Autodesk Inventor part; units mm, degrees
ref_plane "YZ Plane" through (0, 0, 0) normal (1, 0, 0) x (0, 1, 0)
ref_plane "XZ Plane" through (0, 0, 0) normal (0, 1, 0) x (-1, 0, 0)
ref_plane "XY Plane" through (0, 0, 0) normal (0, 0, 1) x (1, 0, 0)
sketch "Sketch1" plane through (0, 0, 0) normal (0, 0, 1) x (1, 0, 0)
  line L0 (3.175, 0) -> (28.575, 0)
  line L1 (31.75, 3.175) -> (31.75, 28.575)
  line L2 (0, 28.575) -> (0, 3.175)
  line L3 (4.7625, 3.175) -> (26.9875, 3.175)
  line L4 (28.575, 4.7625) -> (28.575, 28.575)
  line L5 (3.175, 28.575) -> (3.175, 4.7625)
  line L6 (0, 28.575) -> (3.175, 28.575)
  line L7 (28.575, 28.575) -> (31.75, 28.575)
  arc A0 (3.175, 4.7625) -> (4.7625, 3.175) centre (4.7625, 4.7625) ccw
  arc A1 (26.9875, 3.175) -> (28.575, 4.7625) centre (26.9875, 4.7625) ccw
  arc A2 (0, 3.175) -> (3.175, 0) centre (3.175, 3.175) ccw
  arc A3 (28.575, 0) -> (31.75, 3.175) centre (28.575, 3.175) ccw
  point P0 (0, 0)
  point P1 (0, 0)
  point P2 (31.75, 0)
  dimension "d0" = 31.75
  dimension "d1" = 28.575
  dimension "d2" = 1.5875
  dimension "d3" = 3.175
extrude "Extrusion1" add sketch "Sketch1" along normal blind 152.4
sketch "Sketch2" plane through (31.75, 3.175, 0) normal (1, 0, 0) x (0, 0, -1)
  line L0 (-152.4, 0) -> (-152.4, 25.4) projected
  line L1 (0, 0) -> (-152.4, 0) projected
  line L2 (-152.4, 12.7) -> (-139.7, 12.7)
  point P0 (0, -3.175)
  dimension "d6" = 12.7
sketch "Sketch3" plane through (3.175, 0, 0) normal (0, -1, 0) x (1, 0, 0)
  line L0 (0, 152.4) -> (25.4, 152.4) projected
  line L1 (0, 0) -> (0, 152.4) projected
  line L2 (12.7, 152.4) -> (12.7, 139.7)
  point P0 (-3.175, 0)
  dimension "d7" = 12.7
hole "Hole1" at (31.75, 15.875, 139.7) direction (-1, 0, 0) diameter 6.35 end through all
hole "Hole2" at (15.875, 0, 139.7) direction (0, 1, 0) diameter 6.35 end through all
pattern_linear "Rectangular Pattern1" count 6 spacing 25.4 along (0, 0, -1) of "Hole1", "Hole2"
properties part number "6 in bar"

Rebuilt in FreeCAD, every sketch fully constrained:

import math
import FreeCAD as App
import Part
import Sketcher
Q = App.Units.Quantity

doc = App.newDocument("Part")
params = doc.addObject("Spreadsheet::Sheet", "Params")
for row, (alias, value) in enumerate([
    ("sketch1_radius", "0.125 in"),
    ("sketch1_radius2", "0.0625 in"),
    ("sketch1_width", "1 in"),
    ("pad1_length", "6 in"),
    ("sketch2_diameter", "0.25 in"),
    ("hole_diameter", "0.25 in"),
    ("sketch3_diameter", "0.25 in"),
    ("hole2_diameter", "0.25 in"),
    ("linearpattern_pitch", "1 in"),
], start=1):
    params.set(f"A{row}", alias)
    params.set(f"B{row}", "=" + value)
    params.setAlias(f"B{row}", alias)

body = doc.addObject("PartDesign::Body", "Body")

sketch1 = body.newObject("Sketcher::SketchObject", "Sketch")
sketch1.AttachmentSupport = (doc.getObject("XY_Plane"), [""])
sketch1.MapMode = "FlatFace"
sketch1.addGeometry(Part.ArcOfCircle(Part.Circle(App.Vector(3.175, 3.175, 0), App.Vector(0, 0, 1), 3.175), math.radians(180), math.radians(270)), False)
sketch1.addGeometry(Part.LineSegment(App.Vector(3.175, 0, 0), App.Vector(28.575, 0, 0)), False)
sketch1.addGeometry(Part.ArcOfCircle(Part.Circle(App.Vector(28.575, 3.175, 0), App.Vector(0, 0, 1), 3.175), math.radians(-90), math.radians(0)), False)
sketch1.addGeometry(Part.LineSegment(App.Vector(31.75, 3.175, 0), App.Vector(31.75, 28.575, 0)), False)
sketch1.addGeometry(Part.LineSegment(App.Vector(31.75, 28.575, 0), App.Vector(28.575, 28.575, 0)), False)
sketch1.addGeometry(Part.LineSegment(App.Vector(28.575, 28.575, 0), App.Vector(28.575, 4.7625, 0)), False)
sketch1.addGeometry(Part.ArcOfCircle(Part.Circle(App.Vector(26.9875, 4.7625, 0), App.Vector(0, 0, 1), 1.5875), math.radians(-90), math.radians(0)), False)
sketch1.addGeometry(Part.LineSegment(App.Vector(26.9875, 3.175, 0), App.Vector(4.7625, 3.175, 0)), False)
sketch1.addGeometry(Part.ArcOfCircle(Part.Circle(App.Vector(4.7625, 4.7625, 0), App.Vector(0, 0, 1), 1.5875), math.radians(180), math.radians(270)), False)
sketch1.addGeometry(Part.LineSegment(App.Vector(3.175, 4.7625, 0), App.Vector(3.175, 28.575, 0)), False)
sketch1.addGeometry(Part.LineSegment(App.Vector(3.175, 28.575, 0), App.Vector(0, 28.575, 0)), False)
sketch1.addGeometry(Part.LineSegment(App.Vector(0, 28.575, 0), App.Vector(0, 3.175, 0)), False)
sketch1.addConstraint(Sketcher.Constraint("Tangent", 0, 2, 1, 1))
sketch1.addConstraint(Sketcher.Constraint("Tangent", 1, 2, 2, 1))
sketch1.addConstraint(Sketcher.Constraint("Tangent", 2, 2, 3, 1))
sketch1.addConstraint(Sketcher.Constraint("Coincident", 3, 2, 4, 1))
sketch1.addConstraint(Sketcher.Constraint("Coincident", 4, 2, 5, 1))
sketch1.addConstraint(Sketcher.Constraint("Tangent", 5, 2, 6, 2))
sketch1.addConstraint(Sketcher.Constraint("Tangent", 6, 1, 7, 1))
sketch1.addConstraint(Sketcher.Constraint("Tangent", 7, 2, 8, 2))
sketch1.addConstraint(Sketcher.Constraint("Tangent", 8, 1, 9, 1))
sketch1.addConstraint(Sketcher.Constraint("Coincident", 9, 2, 10, 1))
sketch1.addConstraint(Sketcher.Constraint("Coincident", 10, 2, 11, 1))
sketch1.addConstraint(Sketcher.Constraint("Tangent", 11, 2, 0, 1))
sketch1.addConstraint(Sketcher.Constraint("Horizontal", 1))
sketch1.addConstraint(Sketcher.Constraint("Vertical", 3))
sketch1.addConstraint(Sketcher.Constraint("Horizontal", 4))
sketch1.addConstraint(Sketcher.Constraint("Vertical", 5))
sketch1.addConstraint(Sketcher.Constraint("Horizontal", 7))
sketch1.addConstraint(Sketcher.Constraint("Vertical", 9))
sketch1.addConstraint(Sketcher.Constraint("Horizontal", 10))
sketch1.addConstraint(Sketcher.Constraint("Vertical", 11))
sketch1.addConstraint(Sketcher.Constraint("Equal", 0, 2))
sketch1.addConstraint(Sketcher.Constraint("Equal", 6, 8))
sketch1.addConstraint(Sketcher.Constraint("PointOnObject", 0, 2, -1))
sketch1.addConstraint(Sketcher.Constraint("PointOnObject", 10, 2, -2))
sketch1.addConstraint(Sketcher.Constraint("Horizontal", 2, 2, 6, 1))
sketch1.addConstraint(Sketcher.Constraint("Horizontal", 4, 2, 9, 2))
sketch1.addConstraint(Sketcher.Constraint("Vertical", 1, 2, 4, 2))
sketch1.addConstraint(Sketcher.Constraint("Vertical", 0, 2, 8, 1))
sketch1.addConstraint(Sketcher.Constraint("Equal", 1, 3))
sketch1.addConstraint(Sketcher.Constraint("Radius", 0, Q("0.125 in")))
sketch1.addConstraint(Sketcher.Constraint("Radius", 6, Q("0.0625 in")))
sketch1.addConstraint(Sketcher.Constraint("DistanceX", 1, 1, 1, 2, Q("1 in")))
sketch1.setExpression("Constraints[29]", "Params.sketch1_radius")
sketch1.setExpression("Constraints[30]", "Params.sketch1_radius2")
sketch1.setExpression("Constraints[31]", "Params.sketch1_width")
pad1 = body.newObject("PartDesign::Pad", "Pad")
pad1.Profile = sketch1
pad1.setExpression("Length", "Params.pad1_length")

sketch2 = body.newObject("Sketcher::SketchObject", "Sketch001")
sketch2.AttachmentSupport = (doc.getObject("YZ_Plane"), [""])
sketch2.MapMode = "FlatFace"
sketch2.AttachmentOffset = App.Placement(App.Vector(0, 0, 1.25 * 25.4), App.Rotation())
sketch2.addGeometry(Part.Circle(App.Vector(15.875, 139.7, 0), App.Vector(0, 0, 1), 3.175), False)
sketch2.addConstraint(Sketcher.Constraint("Diameter", 0, Q("0.25 in")))
sketch2.addConstraint(Sketcher.Constraint("DistanceY", -1, 1, 0, 3, Q("5.5 in")))
sketch2.addConstraint(Sketcher.Constraint("DistanceX", -1, 1, 0, 3, Q("0.625 in")))
sketch2.setExpression("Constraints[0]", "Params.sketch2_diameter")
doc.recompute()
hole = body.newObject("PartDesign::Hole", "Hole")
hole.Profile = sketch2
hole.ThreadType = "None"
hole.setExpression("Diameter", "Params.hole_diameter")
hole.DepthType = "ThroughAll"

sketch3 = body.newObject("Sketcher::SketchObject", "Sketch002")
sketch3.AttachmentSupport = (doc.getObject("XZ_Plane"), [""])
sketch3.MapMode = "FlatFace"
sketch3.addGeometry(Part.Circle(App.Vector(15.875, 139.7, 0), App.Vector(0, 0, 1), 3.175), False)
sketch3.addConstraint(Sketcher.Constraint("Diameter", 0, Q("0.25 in")))
sketch3.addConstraint(Sketcher.Constraint("DistanceY", -1, 1, 0, 3, Q("5.5 in")))
sketch3.addConstraint(Sketcher.Constraint("DistanceX", -1, 1, 0, 3, Q("0.625 in")))
sketch3.setExpression("Constraints[0]", "Params.sketch3_diameter")
doc.recompute()
hole2 = body.newObject("PartDesign::Hole", "Hole001")
hole2.Profile = sketch3
hole2.ThreadType = "None"
hole2.setExpression("Diameter", "Params.hole2_diameter")
hole2.DepthType = "ThroughAll"
doc.recompute()

linearpattern = body.newObject("PartDesign::LinearPattern", "LinearPattern")
linearpattern.Originals = [hole, hole2]
linearpattern.Direction = (doc.getObject("Z_Axis"), [""])
linearpattern.Mode = "offset"
linearpattern.setExpression("Offset", "Params.linearpattern_pitch")
linearpattern.Occurrences = 6
linearpattern.Reversed = True
body.Tip = linearpattern

doc.recompute()
